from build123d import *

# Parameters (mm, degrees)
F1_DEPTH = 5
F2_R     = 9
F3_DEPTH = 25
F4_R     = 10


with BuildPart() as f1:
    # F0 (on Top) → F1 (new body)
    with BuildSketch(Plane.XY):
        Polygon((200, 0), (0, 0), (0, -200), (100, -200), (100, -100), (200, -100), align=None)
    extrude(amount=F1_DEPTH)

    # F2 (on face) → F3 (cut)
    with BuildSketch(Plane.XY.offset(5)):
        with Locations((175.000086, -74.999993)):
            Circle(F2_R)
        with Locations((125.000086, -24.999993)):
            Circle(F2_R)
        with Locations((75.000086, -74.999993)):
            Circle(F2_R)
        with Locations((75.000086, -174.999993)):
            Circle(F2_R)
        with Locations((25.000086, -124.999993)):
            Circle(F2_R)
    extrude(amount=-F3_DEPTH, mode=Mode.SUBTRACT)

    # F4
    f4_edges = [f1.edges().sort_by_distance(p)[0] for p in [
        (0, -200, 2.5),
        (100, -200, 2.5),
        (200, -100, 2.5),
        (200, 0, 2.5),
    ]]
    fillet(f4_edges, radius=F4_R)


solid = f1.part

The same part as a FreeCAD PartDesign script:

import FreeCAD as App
import Part
import Sketcher
from FreeCAD import Vector
Q = App.Units.Quantity


def edges_at(feature, points):
    """Names of the edges that pass closest to the given points."""
    edges = feature.Shape.Edges
    near = lambda p: min(range(len(edges)), key=lambda i: edges[i].distToShape(Part.Vertex(*p))[0])
    return sorted({f"Edge{near(p) + 1}" for p in points})


def add_polygon(sketch, points):
    """Adds a closed chain of lines whose ends are joined by coincident constraints."""
    first, n = sketch.GeometryCount, len(points)
    for a, b in zip(points, points[1:] + points[:1]):
        sketch.addGeometry(Part.LineSegment(App.Vector(*a, 0), App.Vector(*b, 0)), False)
    for i in range(n):
        sketch.addConstraint(Sketcher.Constraint("Coincident", first + i, 2, first + (i + 1) % n, 1))

doc = App.newDocument("Part")
body = doc.addObject("PartDesign::Body", "Body")

# Sketch on XY plane
sketch1 = body.newObject("Sketcher::SketchObject", "Sketch")
sketch1.AttachmentSupport = (doc.getObject("XY_Plane"), [""])
sketch1.MapMode = "FlatFace"
add_polygon(sketch1, [(200, 0), (0, 0), (0, -200), (100, -200), (100, -100), (200, -100)])  # lines 0-5
sketch1.addConstraint([
    Sketcher.Constraint("Horizontal", 0),
    Sketcher.Constraint("Vertical", 1),
    Sketcher.Constraint("Horizontal", 2),
    Sketcher.Constraint("Vertical", 3),
    Sketcher.Constraint("Horizontal", 4),
    Sketcher.Constraint("Vertical", 5),
    Sketcher.Constraint("Coincident", 0, 2, -1, 1),
    Sketcher.Constraint("Equal", 2, 4),
    Sketcher.Constraint("Equal", 0, 1),
    Sketcher.Constraint("Equal", 4, 3),
    Sketcher.Constraint("DistanceX", 0, 2, 0, 1, Q("200 mm")),
])
pad1 = body.newObject("PartDesign::Pad", "Pad")
pad1.Profile = sketch1
pad1.Length = 5

# Sketch on XY plane
sketch2 = body.newObject("Sketcher::SketchObject", "Sketch001")
sketch2.AttachmentSupport = (doc.getObject("XY_Plane"), [""])
sketch2.MapMode = "FlatFace"
sketch2.AttachmentOffset = App.Placement(Vector(0, 0, 5), App.Rotation())
sketch2.addGeometry([
    Part.Circle(Vector(175.000086, -74.999993, 0), Vector(0, 0, 1), 9),  # 0
    Part.Circle(Vector(125.000086, -24.999993, 0), Vector(0, 0, 1), 9),  # 1
    Part.Circle(Vector(75.000086, -74.999993, 0), Vector(0, 0, 1), 9),  # 2
    Part.Circle(Vector(75.000086, -174.999993, 0), Vector(0, 0, 1), 9),  # 3
    Part.Circle(Vector(25.000086, -124.999993, 0), Vector(0, 0, 1), 9),  # 4
], False)
sketch2.addConstraint([
    Sketcher.Constraint("Equal", 0, 1),
    Sketcher.Constraint("Equal", 1, 2),
    Sketcher.Constraint("Equal", 2, 3),
    Sketcher.Constraint("Equal", 3, 4),
    Sketcher.Constraint("Horizontal", 0, 3, 2, 3),
    Sketcher.Constraint("Vertical", 2, 3, 3, 3),
    Sketcher.Constraint("Diameter", 0, Q("18 mm")),
    Sketcher.Constraint("DistanceX", 1, 3, 0, 3, Q("50 mm")),
    Sketcher.Constraint("DistanceY", 0, 3, 1, 3, Q("50 mm")),
    Sketcher.Constraint("DistanceX", 2, 3, 1, 3, Q("50 mm")),
    Sketcher.Constraint("DistanceY", 3, 3, 2, 3, Q("100 mm")),
    Sketcher.Constraint("DistanceX", 4, 3, 3, 3, Q("50 mm")),
    Sketcher.Constraint("DistanceY", 3, 3, 4, 3, Q("50 mm")),
    Sketcher.Constraint("DistanceX", -1, 1, 0, 3, Q("175.000086 mm")),
    Sketcher.Constraint("DistanceY", 0, 3, -1, 1, Q("74.999993 mm")),
])
pocket1 = body.newObject("PartDesign::Pocket", "Pocket")
pocket1.Profile = sketch2
pocket1.Length = 25
doc.recompute()

fillet = body.newObject("PartDesign::Fillet", "Fillet")
fillet.Base = (pocket1, edges_at(pocket1, [
    (0, -200, 2.5),
    (100, -200, 2.5),
    (200, -100, 2.5),
    (200, 0, 2.5),
]))
fillet.Radius = 10

doc.recompute()
